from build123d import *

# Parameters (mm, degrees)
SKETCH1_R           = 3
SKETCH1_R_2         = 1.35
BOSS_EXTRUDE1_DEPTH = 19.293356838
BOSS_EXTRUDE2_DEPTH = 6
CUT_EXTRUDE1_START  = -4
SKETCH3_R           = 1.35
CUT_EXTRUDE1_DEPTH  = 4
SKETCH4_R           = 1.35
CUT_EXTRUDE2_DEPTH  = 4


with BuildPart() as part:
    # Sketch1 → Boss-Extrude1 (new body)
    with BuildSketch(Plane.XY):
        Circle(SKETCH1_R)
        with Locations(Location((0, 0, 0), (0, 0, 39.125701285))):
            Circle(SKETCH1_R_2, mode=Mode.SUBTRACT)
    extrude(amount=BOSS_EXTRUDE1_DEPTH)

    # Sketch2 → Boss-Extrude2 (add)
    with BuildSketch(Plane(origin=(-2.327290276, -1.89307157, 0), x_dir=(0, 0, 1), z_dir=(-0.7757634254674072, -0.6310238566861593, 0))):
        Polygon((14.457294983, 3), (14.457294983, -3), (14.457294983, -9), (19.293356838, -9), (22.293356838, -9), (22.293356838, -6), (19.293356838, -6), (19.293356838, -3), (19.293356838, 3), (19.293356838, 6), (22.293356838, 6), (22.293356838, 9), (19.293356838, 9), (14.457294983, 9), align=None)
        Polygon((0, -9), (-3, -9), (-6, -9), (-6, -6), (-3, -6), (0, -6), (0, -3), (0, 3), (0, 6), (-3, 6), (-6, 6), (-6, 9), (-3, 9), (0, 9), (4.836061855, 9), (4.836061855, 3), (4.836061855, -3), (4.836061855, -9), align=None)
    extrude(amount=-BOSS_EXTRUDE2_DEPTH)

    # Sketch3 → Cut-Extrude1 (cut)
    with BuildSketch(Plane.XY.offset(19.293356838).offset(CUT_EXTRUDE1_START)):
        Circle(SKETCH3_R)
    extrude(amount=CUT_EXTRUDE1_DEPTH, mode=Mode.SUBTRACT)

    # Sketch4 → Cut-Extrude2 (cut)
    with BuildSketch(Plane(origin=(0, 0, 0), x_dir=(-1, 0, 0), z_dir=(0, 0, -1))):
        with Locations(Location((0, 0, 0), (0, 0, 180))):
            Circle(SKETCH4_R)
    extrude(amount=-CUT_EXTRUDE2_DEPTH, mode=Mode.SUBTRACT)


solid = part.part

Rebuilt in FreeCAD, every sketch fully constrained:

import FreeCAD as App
import Part
import Sketcher
from FreeCAD import Vector

doc = App.newDocument("Part")
params = doc.addObject("Spreadsheet::Sheet", "Params")
for row, (alias, value) in enumerate([
    ("sketch1_diameter", "6 mm"),
    ("sketch1_diameter2", "2.7 mm"),
    ("pad1_length", "19.293357 mm"),
    ("sketch2_width", "3 mm"),
    ("sketch2_width2", "6 mm"),
    ("sketch2_height", "12 mm"),
    ("pad2_length", "6 mm"),
    ("sketch3_diameter", "2.7 mm"),
    ("pocket1_length", "4 mm"),
    ("sketch4_diameter", "2.7 mm"),
    ("pocket2_length", "4 mm"),
], start=1):
    params.set(f"A{row}", alias)
    params.set(f"B{row}", "=" + value)
    params.setAlias(f"B{row}", alias)

body = doc.addObject("PartDesign::Body", "Body")

# Sketch on XY plane
sketch1 = body.newObject("Sketcher::SketchObject", "Sketch")
sketch1.AttachmentSupport = (doc.getObject("XY_Plane"), [""])
sketch1.MapMode = "FlatFace"
sketch1.addGeometry([
    Part.Circle(Vector(0, 0, 0), Vector(0, 0, 1), 3),
    Part.Circle(Vector(0, 0, 0), Vector(0, 0, 1), 1.4),
], False)
sketch1.addConstraint([
    Sketcher.Constraint("Coincident", 0, 3, -1, 1),
    Sketcher.Constraint("Coincident", 1, 3, -1, 1),
    Sketcher.Constraint("Diameter", 0, 6.0),
    Sketcher.Constraint("Diameter", 1, 2.7),
])
sketch1.setExpression("Constraints[2]", "Params.sketch1_diameter")
sketch1.setExpression("Constraints[3]", "Params.sketch1_diameter2")
pad1 = body.newObject("PartDesign::Pad", "Pad")
pad1.Profile = sketch1
pad1.setExpression("Length", "Params.pad1_length")

# Sketch on an angled plane
sketch2 = body.newObject("Sketcher::SketchObject", "Sketch001")
sketch2.Placement = App.Placement(Vector(-2.32729, -1.893072, 0), App.Rotation(Vector(0, 0, 1), Vector(-0.631023857, 0.775763425, 0), Vector(-0.775763425, -0.631023857, 0), "ZXY"))
sketch2.addGeometry([
    Part.LineSegment(Vector(14.5, -9, 0), Vector(22.3, -9, 0)),  # 0
    Part.LineSegment(Vector(22.3, -9, 0), Vector(22.3, -6, 0)),  # 1
    Part.LineSegment(Vector(22.3, -6, 0), Vector(19.3, -6, 0)),  # 2
    Part.LineSegment(Vector(19.3, -6, 0), Vector(19.3, 6, 0)),  # 3
    Part.LineSegment(Vector(19.3, 6, 0), Vector(22.3, 6, 0)),  # 4
    Part.LineSegment(Vector(22.3, 6, 0), Vector(22.3, 9, 0)),  # 5
    Part.LineSegment(Vector(22.3, 9, 0), Vector(14.5, 9, 0)),  # 6
    Part.LineSegment(Vector(14.5, 9, 0), Vector(14.5, -9, 0)),  # 7
    Part.LineSegment(Vector(-6, -9, 0), Vector(4.8, -9, 0)),  # 8
    Part.LineSegment(Vector(4.8, -9, 0), Vector(4.8, 9, 0)),  # 9
    Part.LineSegment(Vector(4.8, 9, 0), Vector(-6, 9, 0)),  # 10
    Part.LineSegment(Vector(-6, 9, 0), Vector(-6, 6, 0)),  # 11
    Part.LineSegment(Vector(-6, 6, 0), Vector(0, 6, 0)),  # 12
    Part.LineSegment(Vector(0, 6, 0), Vector(0, -6, 0)),  # 13
    Part.LineSegment(Vector(0, -6, 0), Vector(-6, -6, 0)),  # 14
    Part.LineSegment(Vector(-6, -6, 0), Vector(-6, -9, 0)),  # 15
], False)
sketch2.addConstraint([
    Sketcher.Constraint("Coincident", 0, 2, 1, 1),
    Sketcher.Constraint("Coincident", 1, 2, 2, 1),
    Sketcher.Constraint("Coincident", 2, 2, 3, 1),
    Sketcher.Constraint("Coincident", 3, 2, 4, 1),
    Sketcher.Constraint("Coincident", 4, 2, 5, 1),
    Sketcher.Constraint("Coincident", 5, 2, 6, 1),
    Sketcher.Constraint("Coincident", 6, 2, 7, 1),
    Sketcher.Constraint("Coincident", 7, 2, 0, 1),
    Sketcher.Constraint("Coincident", 8, 2, 9, 1),
    Sketcher.Constraint("Coincident", 9, 2, 10, 1),
    Sketcher.Constraint("Coincident", 10, 2, 11, 1),
    Sketcher.Constraint("Coincident", 11, 2, 12, 1),
    Sketcher.Constraint("Coincident", 12, 2, 13, 1),
    Sketcher.Constraint("Coincident", 13, 2, 14, 1),
    Sketcher.Constraint("Coincident", 14, 2, 15, 1),
    Sketcher.Constraint("Coincident", 15, 2, 8, 1),
    Sketcher.Constraint("Horizontal", 0),
    Sketcher.Constraint("Vertical", 1),
    Sketcher.Constraint("Horizontal", 2),
    Sketcher.Constraint("Vertical", 3),
    Sketcher.Constraint("Horizontal", 4),
    Sketcher.Constraint("Vertical", 5),
    Sketcher.Constraint("Horizontal", 6),
    Sketcher.Constraint("Vertical", 7),
    Sketcher.Constraint("Horizontal", 8),
    Sketcher.Constraint("Vertical", 9),
    Sketcher.Constraint("Horizontal", 10),
    Sketcher.Constraint("Vertical", 11),
    Sketcher.Constraint("Horizontal", 12),
    Sketcher.Constraint("Vertical", 13),
    Sketcher.Constraint("Horizontal", 14),
    Sketcher.Constraint("Vertical", 15),
    Sketcher.Constraint("Symmetric", 12, 2, 13, 2, -1, 1),
    Sketcher.Constraint("Symmetric", 1, 2, 4, 2, -1),
    Sketcher.Constraint("Symmetric", 10, 2, 15, 2, -1),
    Sketcher.Constraint("Horizontal", 7, 2, 8, 2),
    Sketcher.Constraint("Horizontal", 6, 2, 9, 2),
    Sketcher.Constraint("Horizontal", 4, 2, 11, 2),
    Sketcher.Constraint("Equal", 4, 1),
    Sketcher.Constraint("DistanceX", 2, 2, 2, 1, 3.0),
    Sketcher.Constraint("DistanceX", 12, 1, 12, 2, 6.0),
    Sketcher.Constraint("DistanceY", 3, 1, 3, 2, 12.0),
    Sketcher.Constraint("DistanceX", 0, 1, 0, 2, 7.836062),
    Sketcher.Constraint("DistanceX", 8, 1, 8, 2, 10.836062),
    Sketcher.Constraint("DistanceX", -1, 1, 0, 2, 22.293357),
])
sketch2.setExpression("Constraints[39]", "Params.sketch2_width")
sketch2.setExpression("Constraints[40]", "Params.sketch2_width2")
sketch2.setExpression("Constraints[41]", "Params.sketch2_height")
pad2 = body.newObject("PartDesign::Pad", "Pad001")
pad2.Profile = sketch2
pad2.setExpression("Length", "Params.pad2_length")
pad2.Reversed = True

# Sketch on XY plane
sketch3 = body.newObject("Sketcher::SketchObject", "Sketch002")
sketch3.AttachmentSupport = (doc.getObject("XY_Plane"), [""])
sketch3.MapMode = "FlatFace"
sketch3.AttachmentOffset = App.Placement(Vector(0, 0, 15.293357), App.Rotation())
sketch3.addGeometry(Part.Circle(Vector(0, 0, 0), Vector(0, 0, 1), 1.4), False)
sketch3.addConstraint([
    Sketcher.Constraint("Coincident", 0, 3, -1, 1),
    Sketcher.Constraint("Diameter", 0, 2.7),
])
sketch3.setExpression("Constraints[1]", "Params.sketch3_diameter")
pocket1 = body.newObject("PartDesign::Pocket", "Pocket")
pocket1.Profile = sketch3
pocket1.setExpression("Length", "Params.pocket1_length")
pocket1.Reversed = True

# Sketch on XY plane
sketch4 = body.newObject("Sketcher::SketchObject", "Sketch003")
sketch4.AttachmentSupport = (doc.getObject("XY_Plane"), [""])
sketch4.MapMode = "FlatFace"
sketch4.addGeometry(Part.Circle(Vector(0, 0, 0), Vector(0, 0, 1), 1.4), False)
sketch4.addConstraint([
    Sketcher.Constraint("Coincident", 0, 3, -1, 1),
    Sketcher.Constraint("Diameter", 0, 2.7),
])
sketch4.setExpression("Constraints[1]", "Params.sketch4_diameter")
pocket2 = body.newObject("PartDesign::Pocket", "Pocket001")
pocket2.Profile = sketch4
pocket2.setExpression("Length", "Params.pocket2_length")
pocket2.Reversed = True

doc.recompute()
